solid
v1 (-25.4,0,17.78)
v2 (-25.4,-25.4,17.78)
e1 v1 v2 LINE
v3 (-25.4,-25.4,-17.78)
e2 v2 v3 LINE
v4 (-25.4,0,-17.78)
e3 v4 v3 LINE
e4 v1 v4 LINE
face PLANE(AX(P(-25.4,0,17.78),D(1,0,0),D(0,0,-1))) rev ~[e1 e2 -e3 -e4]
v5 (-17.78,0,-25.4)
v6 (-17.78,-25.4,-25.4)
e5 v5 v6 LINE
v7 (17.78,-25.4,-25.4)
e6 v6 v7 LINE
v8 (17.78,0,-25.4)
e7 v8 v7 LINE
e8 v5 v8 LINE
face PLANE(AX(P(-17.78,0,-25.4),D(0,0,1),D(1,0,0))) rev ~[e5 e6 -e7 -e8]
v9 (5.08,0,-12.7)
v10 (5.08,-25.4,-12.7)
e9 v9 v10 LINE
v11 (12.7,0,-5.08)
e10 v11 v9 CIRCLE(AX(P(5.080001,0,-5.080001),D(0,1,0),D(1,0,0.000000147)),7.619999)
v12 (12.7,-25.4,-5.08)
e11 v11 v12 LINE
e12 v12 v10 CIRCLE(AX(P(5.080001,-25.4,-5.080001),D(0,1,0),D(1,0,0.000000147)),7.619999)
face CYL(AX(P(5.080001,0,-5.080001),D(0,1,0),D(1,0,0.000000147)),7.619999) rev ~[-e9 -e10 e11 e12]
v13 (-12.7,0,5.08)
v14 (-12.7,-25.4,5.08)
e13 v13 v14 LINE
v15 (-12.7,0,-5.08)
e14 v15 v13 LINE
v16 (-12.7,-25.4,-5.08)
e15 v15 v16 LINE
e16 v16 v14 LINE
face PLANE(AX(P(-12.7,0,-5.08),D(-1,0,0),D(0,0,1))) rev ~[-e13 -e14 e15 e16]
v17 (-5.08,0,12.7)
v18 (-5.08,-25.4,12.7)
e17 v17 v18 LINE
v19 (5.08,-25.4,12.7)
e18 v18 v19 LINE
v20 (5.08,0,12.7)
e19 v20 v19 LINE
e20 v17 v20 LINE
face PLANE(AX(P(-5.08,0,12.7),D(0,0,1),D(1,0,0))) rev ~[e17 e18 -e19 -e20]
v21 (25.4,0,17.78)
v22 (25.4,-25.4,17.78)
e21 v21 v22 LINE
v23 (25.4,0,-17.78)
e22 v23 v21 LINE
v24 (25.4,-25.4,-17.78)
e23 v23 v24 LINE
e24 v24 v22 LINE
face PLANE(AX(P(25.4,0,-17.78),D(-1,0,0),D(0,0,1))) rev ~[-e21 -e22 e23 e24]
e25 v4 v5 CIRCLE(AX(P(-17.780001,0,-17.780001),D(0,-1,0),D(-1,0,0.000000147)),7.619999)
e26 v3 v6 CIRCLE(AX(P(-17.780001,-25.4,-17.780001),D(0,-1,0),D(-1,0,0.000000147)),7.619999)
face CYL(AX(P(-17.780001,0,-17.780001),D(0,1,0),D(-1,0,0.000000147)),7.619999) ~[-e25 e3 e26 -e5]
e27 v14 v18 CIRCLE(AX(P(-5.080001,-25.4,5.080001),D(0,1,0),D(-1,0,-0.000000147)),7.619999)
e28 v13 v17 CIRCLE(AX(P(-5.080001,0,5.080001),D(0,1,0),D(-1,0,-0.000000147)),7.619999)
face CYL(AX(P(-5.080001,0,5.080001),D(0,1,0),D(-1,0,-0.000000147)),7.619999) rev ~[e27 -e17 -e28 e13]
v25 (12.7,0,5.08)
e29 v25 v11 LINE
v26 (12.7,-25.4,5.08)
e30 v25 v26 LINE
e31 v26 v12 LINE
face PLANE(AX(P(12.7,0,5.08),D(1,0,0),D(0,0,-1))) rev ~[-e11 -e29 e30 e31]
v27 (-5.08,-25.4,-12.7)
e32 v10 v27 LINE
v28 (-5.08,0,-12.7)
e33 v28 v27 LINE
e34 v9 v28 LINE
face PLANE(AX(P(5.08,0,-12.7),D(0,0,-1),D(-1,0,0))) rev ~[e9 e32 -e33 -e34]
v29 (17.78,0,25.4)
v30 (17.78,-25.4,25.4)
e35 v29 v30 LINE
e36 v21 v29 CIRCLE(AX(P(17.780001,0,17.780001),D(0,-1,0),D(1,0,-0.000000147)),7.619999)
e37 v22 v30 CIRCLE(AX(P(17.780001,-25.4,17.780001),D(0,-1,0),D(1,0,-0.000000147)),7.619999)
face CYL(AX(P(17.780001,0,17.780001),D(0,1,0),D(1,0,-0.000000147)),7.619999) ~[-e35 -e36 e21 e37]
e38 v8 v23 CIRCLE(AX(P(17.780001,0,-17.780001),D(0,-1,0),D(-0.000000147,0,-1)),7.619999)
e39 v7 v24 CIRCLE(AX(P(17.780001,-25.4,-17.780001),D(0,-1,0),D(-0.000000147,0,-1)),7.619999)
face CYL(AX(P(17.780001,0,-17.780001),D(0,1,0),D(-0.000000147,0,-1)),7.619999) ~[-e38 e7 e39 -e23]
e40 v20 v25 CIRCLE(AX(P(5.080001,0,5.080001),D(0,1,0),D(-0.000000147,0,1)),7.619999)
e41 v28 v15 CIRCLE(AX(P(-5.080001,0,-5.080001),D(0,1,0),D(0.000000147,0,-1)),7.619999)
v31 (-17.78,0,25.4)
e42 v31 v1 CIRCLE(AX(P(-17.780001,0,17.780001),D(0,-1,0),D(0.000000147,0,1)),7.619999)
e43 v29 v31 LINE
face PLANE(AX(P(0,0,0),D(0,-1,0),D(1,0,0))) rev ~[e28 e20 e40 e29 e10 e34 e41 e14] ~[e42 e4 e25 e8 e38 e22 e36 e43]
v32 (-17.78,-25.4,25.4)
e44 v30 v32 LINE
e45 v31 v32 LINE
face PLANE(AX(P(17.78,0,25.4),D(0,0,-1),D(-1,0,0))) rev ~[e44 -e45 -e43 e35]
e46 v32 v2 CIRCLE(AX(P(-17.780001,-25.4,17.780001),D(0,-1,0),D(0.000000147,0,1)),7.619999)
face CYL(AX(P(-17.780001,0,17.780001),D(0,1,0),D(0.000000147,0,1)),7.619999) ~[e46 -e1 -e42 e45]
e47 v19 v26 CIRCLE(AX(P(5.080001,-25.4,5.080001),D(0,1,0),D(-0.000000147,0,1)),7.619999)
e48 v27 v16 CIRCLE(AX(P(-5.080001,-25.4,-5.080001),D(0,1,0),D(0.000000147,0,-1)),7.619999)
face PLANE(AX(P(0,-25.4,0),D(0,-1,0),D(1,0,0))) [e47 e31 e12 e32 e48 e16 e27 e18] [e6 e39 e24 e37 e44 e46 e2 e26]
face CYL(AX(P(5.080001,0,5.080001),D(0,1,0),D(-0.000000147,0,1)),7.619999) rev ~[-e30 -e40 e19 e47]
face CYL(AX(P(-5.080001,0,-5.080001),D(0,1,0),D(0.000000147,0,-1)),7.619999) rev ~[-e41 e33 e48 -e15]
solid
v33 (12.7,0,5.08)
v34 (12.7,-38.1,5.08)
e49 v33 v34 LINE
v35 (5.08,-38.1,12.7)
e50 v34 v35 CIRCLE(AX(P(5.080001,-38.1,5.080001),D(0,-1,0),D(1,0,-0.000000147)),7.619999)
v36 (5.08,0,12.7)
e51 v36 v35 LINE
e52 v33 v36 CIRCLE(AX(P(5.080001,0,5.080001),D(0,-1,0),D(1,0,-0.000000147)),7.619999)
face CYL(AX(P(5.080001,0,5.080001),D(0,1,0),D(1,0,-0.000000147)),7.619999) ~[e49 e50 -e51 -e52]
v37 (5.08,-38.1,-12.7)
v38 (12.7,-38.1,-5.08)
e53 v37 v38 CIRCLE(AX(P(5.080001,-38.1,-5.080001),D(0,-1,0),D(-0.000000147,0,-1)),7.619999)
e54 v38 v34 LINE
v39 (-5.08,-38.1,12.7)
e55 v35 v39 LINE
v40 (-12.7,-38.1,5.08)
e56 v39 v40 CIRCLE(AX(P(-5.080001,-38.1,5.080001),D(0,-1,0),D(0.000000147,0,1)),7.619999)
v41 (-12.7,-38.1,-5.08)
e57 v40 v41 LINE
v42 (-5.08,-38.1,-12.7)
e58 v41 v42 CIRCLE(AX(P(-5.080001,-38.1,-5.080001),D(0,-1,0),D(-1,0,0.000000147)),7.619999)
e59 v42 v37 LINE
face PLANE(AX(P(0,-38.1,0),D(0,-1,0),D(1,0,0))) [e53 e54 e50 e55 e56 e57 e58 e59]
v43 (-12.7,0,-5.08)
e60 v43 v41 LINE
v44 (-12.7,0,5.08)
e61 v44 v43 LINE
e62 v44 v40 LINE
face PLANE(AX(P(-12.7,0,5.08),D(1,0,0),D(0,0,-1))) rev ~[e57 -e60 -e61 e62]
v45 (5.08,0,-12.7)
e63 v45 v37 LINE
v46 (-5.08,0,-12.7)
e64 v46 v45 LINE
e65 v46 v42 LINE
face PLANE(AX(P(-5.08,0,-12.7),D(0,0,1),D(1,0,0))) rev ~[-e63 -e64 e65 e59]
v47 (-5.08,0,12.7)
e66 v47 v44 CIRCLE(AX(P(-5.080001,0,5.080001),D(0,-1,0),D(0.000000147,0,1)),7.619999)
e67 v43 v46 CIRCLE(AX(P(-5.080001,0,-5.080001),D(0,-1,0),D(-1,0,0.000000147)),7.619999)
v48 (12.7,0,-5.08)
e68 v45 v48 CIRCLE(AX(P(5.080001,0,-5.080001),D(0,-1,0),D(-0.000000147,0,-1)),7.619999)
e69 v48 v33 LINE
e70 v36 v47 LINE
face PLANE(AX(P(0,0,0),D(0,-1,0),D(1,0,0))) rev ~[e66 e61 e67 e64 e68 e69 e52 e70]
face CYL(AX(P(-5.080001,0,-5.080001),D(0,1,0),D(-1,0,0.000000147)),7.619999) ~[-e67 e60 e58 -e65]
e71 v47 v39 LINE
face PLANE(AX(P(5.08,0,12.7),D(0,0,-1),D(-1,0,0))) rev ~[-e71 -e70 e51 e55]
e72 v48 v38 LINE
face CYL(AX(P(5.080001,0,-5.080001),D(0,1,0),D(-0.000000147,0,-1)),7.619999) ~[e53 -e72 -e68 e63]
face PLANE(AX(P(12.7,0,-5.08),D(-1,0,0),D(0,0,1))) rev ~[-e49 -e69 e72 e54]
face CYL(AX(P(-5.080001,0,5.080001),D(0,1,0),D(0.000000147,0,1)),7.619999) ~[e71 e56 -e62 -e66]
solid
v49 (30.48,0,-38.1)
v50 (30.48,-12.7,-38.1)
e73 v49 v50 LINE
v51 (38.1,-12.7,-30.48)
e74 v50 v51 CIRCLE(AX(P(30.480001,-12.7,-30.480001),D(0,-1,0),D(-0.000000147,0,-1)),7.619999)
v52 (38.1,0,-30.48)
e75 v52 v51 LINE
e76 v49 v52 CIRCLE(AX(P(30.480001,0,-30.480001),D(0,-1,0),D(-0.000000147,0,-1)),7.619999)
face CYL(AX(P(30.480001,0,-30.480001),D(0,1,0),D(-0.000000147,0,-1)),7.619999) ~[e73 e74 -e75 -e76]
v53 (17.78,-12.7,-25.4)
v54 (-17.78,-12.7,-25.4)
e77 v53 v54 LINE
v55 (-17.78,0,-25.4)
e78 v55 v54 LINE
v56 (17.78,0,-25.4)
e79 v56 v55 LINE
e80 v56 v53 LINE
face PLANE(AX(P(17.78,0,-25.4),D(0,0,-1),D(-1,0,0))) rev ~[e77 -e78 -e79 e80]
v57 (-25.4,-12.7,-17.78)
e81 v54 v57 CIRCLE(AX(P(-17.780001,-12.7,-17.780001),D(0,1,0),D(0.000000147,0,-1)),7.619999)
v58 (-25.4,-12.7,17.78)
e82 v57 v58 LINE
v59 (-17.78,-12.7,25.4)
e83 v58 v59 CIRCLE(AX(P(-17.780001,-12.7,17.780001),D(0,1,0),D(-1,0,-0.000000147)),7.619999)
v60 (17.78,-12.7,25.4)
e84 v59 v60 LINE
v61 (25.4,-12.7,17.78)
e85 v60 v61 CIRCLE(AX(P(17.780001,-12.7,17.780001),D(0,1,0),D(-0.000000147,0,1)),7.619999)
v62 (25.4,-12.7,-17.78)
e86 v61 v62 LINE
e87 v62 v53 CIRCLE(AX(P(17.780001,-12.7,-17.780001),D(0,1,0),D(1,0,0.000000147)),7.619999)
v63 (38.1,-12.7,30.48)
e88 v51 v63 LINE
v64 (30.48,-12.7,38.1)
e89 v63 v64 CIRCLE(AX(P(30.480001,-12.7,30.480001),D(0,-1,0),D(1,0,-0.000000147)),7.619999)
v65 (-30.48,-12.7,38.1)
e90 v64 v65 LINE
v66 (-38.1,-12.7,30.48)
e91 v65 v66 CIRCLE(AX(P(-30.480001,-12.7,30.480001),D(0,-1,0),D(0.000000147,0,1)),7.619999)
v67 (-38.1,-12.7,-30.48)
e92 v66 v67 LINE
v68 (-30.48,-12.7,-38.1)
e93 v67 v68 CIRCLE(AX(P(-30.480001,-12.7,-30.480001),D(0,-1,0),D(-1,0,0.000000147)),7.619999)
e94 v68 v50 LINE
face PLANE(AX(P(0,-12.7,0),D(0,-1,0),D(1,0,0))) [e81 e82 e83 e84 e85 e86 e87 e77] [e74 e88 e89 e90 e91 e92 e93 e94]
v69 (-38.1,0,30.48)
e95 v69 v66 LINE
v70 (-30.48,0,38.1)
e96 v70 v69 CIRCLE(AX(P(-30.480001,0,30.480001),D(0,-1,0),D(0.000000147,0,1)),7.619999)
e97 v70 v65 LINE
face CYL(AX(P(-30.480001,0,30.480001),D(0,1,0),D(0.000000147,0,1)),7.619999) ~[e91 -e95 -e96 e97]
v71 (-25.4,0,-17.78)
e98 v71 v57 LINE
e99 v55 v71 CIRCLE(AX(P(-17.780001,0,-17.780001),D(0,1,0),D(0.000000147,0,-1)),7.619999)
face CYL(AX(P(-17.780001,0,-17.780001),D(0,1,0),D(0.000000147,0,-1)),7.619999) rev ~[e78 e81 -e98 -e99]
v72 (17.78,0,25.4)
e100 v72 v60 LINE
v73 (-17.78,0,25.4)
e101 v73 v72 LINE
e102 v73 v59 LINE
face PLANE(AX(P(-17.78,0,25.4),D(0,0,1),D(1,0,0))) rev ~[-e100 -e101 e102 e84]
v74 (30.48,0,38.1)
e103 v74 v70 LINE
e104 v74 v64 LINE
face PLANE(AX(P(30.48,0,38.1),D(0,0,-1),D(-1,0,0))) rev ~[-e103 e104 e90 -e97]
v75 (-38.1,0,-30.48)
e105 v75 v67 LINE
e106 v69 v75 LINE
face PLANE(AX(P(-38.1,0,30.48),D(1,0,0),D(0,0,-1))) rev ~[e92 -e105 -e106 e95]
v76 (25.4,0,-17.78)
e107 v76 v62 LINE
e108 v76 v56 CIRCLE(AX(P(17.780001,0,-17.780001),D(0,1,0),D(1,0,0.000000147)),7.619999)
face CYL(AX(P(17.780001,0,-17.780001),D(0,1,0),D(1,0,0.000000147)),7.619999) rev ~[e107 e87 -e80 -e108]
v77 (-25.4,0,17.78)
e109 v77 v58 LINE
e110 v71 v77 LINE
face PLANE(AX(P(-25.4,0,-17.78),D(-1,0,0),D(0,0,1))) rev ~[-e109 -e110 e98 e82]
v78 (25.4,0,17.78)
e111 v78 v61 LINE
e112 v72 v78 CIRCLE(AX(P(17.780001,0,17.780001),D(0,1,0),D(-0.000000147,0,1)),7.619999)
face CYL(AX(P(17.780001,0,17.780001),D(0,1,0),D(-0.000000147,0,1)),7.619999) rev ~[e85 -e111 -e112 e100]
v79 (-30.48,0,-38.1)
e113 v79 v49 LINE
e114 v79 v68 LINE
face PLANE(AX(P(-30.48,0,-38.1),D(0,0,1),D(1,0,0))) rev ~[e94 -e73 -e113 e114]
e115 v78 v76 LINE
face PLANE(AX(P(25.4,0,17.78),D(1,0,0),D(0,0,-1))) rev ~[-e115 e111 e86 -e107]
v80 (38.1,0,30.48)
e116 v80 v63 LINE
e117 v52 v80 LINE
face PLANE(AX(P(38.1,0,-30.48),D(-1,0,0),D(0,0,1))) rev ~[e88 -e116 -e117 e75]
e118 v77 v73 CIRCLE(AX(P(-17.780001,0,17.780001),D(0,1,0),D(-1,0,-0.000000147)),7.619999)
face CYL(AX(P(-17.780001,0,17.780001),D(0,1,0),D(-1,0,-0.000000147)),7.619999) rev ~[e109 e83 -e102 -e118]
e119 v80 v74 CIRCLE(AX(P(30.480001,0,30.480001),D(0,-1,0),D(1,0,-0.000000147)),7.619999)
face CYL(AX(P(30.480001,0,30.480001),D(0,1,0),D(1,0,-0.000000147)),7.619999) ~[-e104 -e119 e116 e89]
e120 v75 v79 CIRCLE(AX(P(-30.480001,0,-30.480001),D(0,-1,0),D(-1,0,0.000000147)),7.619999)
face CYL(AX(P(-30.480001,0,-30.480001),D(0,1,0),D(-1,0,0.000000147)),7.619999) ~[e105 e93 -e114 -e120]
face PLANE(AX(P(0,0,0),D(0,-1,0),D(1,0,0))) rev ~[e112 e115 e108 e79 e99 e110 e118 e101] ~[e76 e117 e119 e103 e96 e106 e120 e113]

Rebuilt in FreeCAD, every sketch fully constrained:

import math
import FreeCAD as App
import Part
import Sketcher
Q = App.Units.Quantity

doc = App.newDocument("Part")
body = doc.addObject("PartDesign::Body", "Body")

sketch1 = body.newObject("Sketcher::SketchObject", "Sketch")
sketch1.AttachmentSupport = (doc.getObject("XZ_Plane"), [""])
sketch1.MapMode = "FlatFace"
sketch1.addGeometry([
    Part.LineSegment(App.Vector(-30.48, -38.1, 0), App.Vector(30.48, -38.1, 0)),
    Part.ArcOfCircle(Part.Circle(App.Vector(30.480001, -30.480001, 0), App.Vector(0, 0, 1), 7.619999), math.radians(-90.000008), math.radians(0.000008)),
    Part.LineSegment(App.Vector(38.1, -30.48, 0), App.Vector(38.1, 30.48, 0)),
    Part.ArcOfCircle(Part.Circle(App.Vector(30.480001, 30.480001, 0), App.Vector(0, 0, 1), 7.619999), math.radians(-0.000008), math.radians(90.000008)),
    Part.LineSegment(App.Vector(30.48, 38.1, 0), App.Vector(-30.48, 38.1, 0)),
    Part.ArcOfCircle(Part.Circle(App.Vector(-30.480001, 30.480001, 0), App.Vector(0, 0, 1), 7.619999), math.radians(89.999992), math.radians(180.000008)),
    Part.LineSegment(App.Vector(-38.1, 30.48, 0), App.Vector(-38.1, -30.48, 0)),
    Part.ArcOfCircle(Part.Circle(App.Vector(-30.480001, -30.480001, 0), App.Vector(0, 0, 1), 7.619999), math.radians(179.999992), math.radians(270.000008)),
    Part.LineSegment(App.Vector(25.4, 17.78, 0), App.Vector(25.4, -17.78, 0)),
    Part.ArcOfCircle(Part.Circle(App.Vector(17.780001, -17.780001, 0), App.Vector(0, 0, 1), 7.619999), math.radians(-90.000008), math.radians(0.000008)),
    Part.LineSegment(App.Vector(17.78, -25.4, 0), App.Vector(-17.78, -25.4, 0)),
    Part.ArcOfCircle(Part.Circle(App.Vector(-17.780001, -17.780001, 0), App.Vector(0, 0, 1), 7.619999), math.radians(179.999992), math.radians(270.000008)),
    Part.LineSegment(App.Vector(-25.4, -17.78, 0), App.Vector(-25.4, 17.78, 0)),
    Part.ArcOfCircle(Part.Circle(App.Vector(-17.780001, 17.780001, 0), App.Vector(0, 0, 1), 7.619999), math.radians(89.999992), math.radians(180.000008)),
    Part.LineSegment(App.Vector(-17.78, 25.4, 0), App.Vector(17.78, 25.4, 0)),
    Part.ArcOfCircle(Part.Circle(App.Vector(17.780001, 17.780001, 0), App.Vector(0, 0, 1), 7.619999), math.radians(-0.000008), math.radians(90.000008)),
], False)
sketch1.addConstraint([
    Sketcher.Constraint("Tangent", 0, 2, 1, 1),
    Sketcher.Constraint("Tangent", 1, 2, 2, 1),
    Sketcher.Constraint("Tangent", 2, 2, 3, 1),
    Sketcher.Constraint("Tangent", 3, 2, 4, 1),
    Sketcher.Constraint("Tangent", 4, 2, 5, 1),
    Sketcher.Constraint("Tangent", 5, 2, 6, 1),
    Sketcher.Constraint("Tangent", 6, 2, 7, 1),
    Sketcher.Constraint("Tangent", 7, 2, 0, 1),
    Sketcher.Constraint("Tangent", 8, 2, 9, 2),
    Sketcher.Constraint("Tangent", 9, 1, 10, 1),
    Sketcher.Constraint("Tangent", 10, 2, 11, 2),
    Sketcher.Constraint("Tangent", 11, 1, 12, 1),
    Sketcher.Constraint("Tangent", 12, 2, 13, 2),
    Sketcher.Constraint("Tangent", 13, 1, 14, 1),
    Sketcher.Constraint("Tangent", 14, 2, 15, 2),
    Sketcher.Constraint("Tangent", 15, 1, 8, 1),
    Sketcher.Constraint("Horizontal", 0),
    Sketcher.Constraint("Vertical", 2),
    Sketcher.Constraint("Horizontal", 4),
    Sketcher.Constraint("Vertical", 6),
    Sketcher.Constraint("Vertical", 8),
    Sketcher.Constraint("Horizontal", 10),
    Sketcher.Constraint("Vertical", 12),
    Sketcher.Constraint("Horizontal", 14),
    Sketcher.Constraint("Equal", 1, 3),
    Sketcher.Constraint("Equal", 3, 5),
    Sketcher.Constraint("Equal", 5, 7),
    Sketcher.Constraint("Equal", 7, 9),
    Sketcher.Constraint("Equal", 9, 11),
    Sketcher.Constraint("Equal", 11, 13),
    Sketcher.Constraint("Equal", 13, 15),
    Sketcher.Constraint("Symmetric", 1, 3, 5, 3, -1, 1),
    Sketcher.Constraint("Symmetric", 9, 3, 13, 3, -1, 1),
    Sketcher.Constraint("Equal", 4, 2),
    Sketcher.Constraint("Equal", 14, 8),
    Sketcher.Constraint("Radius", 1, Q("0.3 in")),
    Sketcher.Constraint("DistanceX", 0, 1, 0, 2, Q("2.4 in")),
    Sketcher.Constraint("DistanceX", 10, 2, 10, 1, Q("1.4 in")),
])
pad1 = body.newObject("PartDesign::Pad", "Pad")
pad1.Profile = sketch1
pad1.Length = Q("0.5 in")
body2 = doc.addObject("PartDesign::Body", "Body001")

sketch2 = body2.newObject("Sketcher::SketchObject", "Sketch001")
sketch2.AttachmentSupport = (doc.getObject("XZ_Plane001"), [""])
sketch2.MapMode = "FlatFace"
sketch2.addGeometry([
    Part.LineSegment(App.Vector(-17.78, -25.4, 0), App.Vector(17.78, -25.4, 0)),
    Part.ArcOfCircle(Part.Circle(App.Vector(17.780001, -17.780001, 0), App.Vector(0, 0, 1), 7.619999), math.radians(-90.000008), math.radians(0.000008)),
    Part.LineSegment(App.Vector(25.4, -17.78, 0), App.Vector(25.4, 17.78, 0)),
    Part.ArcOfCircle(Part.Circle(App.Vector(17.780001, 17.780001, 0), App.Vector(0, 0, 1), 7.619999), math.radians(-0.000008), math.radians(90.000008)),
    Part.LineSegment(App.Vector(17.78, 25.4, 0), App.Vector(-17.78, 25.4, 0)),
    Part.ArcOfCircle(Part.Circle(App.Vector(-17.780001, 17.780001, 0), App.Vector(0, 0, 1), 7.619999), math.radians(89.999992), math.radians(180.000008)),
    Part.LineSegment(App.Vector(-25.4, 17.78, 0), App.Vector(-25.4, -17.78, 0)),
    Part.ArcOfCircle(Part.Circle(App.Vector(-17.780001, -17.780001, 0), App.Vector(0, 0, 1), 7.619999), math.radians(179.999992), math.radians(270.000008)),
    Part.LineSegment(App.Vector(12.7, 5.08, 0), App.Vector(12.7, -5.08, 0)),
    Part.ArcOfCircle(Part.Circle(App.Vector(5.080001, -5.080001, 0), App.Vector(0, 0, 1), 7.619999), math.radians(-90.000008), math.radians(0.000008)),
    Part.LineSegment(App.Vector(5.08, -12.7, 0), App.Vector(-5.08, -12.7, 0)),
    Part.ArcOfCircle(Part.Circle(App.Vector(-5.080001, -5.080001, 0), App.Vector(0, 0, 1), 7.619999), math.radians(179.999992), math.radians(270.000008)),
    Part.LineSegment(App.Vector(-12.7, -5.08, 0), App.Vector(-12.7, 5.08, 0)),
    Part.ArcOfCircle(Part.Circle(App.Vector(-5.080001, 5.080001, 0), App.Vector(0, 0, 1), 7.619999), math.radians(89.999992), math.radians(180.000008)),
    Part.LineSegment(App.Vector(-5.08, 12.7, 0), App.Vector(5.08, 12.7, 0)),
    Part.ArcOfCircle(Part.Circle(App.Vector(5.080001, 5.080001, 0), App.Vector(0, 0, 1), 7.619999), math.radians(-0.000008), math.radians(90.000008)),
], False)
sketch2.addConstraint([
    Sketcher.Constraint("Tangent", 0, 2, 1, 1),
    Sketcher.Constraint("Tangent", 1, 2, 2, 1),
    Sketcher.Constraint("Tangent", 2, 2, 3, 1),
    Sketcher.Constraint("Tangent", 3, 2, 4, 1),
    Sketcher.Constraint("Tangent", 4, 2, 5, 1),
    Sketcher.Constraint("Tangent", 5, 2, 6, 1),
    Sketcher.Constraint("Tangent", 6, 2, 7, 1),
    Sketcher.Constraint("Tangent", 7, 2, 0, 1),
    Sketcher.Constraint("Tangent", 8, 2, 9, 2),
    Sketcher.Constraint("Tangent", 9, 1, 10, 1),
    Sketcher.Constraint("Tangent", 10, 2, 11, 2),
    Sketcher.Constraint("Tangent", 11, 1, 12, 1),
    Sketcher.Constraint("Tangent", 12, 2, 13, 2),
    Sketcher.Constraint("Tangent", 13, 1, 14, 1),
    Sketcher.Constraint("Tangent", 14, 2, 15, 2),
    Sketcher.Constraint("Tangent", 15, 1, 8, 1),
    Sketcher.Constraint("Horizontal", 0),
    Sketcher.Constraint("Vertical", 2),
    Sketcher.Constraint("Horizontal", 4),
    Sketcher.Constraint("Vertical", 6),
    Sketcher.Constraint("Vertical", 8),
    Sketcher.Constraint("Horizontal", 10),
    Sketcher.Constraint("Vertical", 12),
    Sketcher.Constraint("Horizontal", 14),
    Sketcher.Constraint("Equal", 1, 3),
    Sketcher.Constraint("Equal", 3, 5),
    Sketcher.Constraint("Equal", 5, 7),
    Sketcher.Constraint("Equal", 7, 9),
    Sketcher.Constraint("Equal", 9, 11),
    Sketcher.Constraint("Equal", 11, 13),
    Sketcher.Constraint("Equal", 13, 15),
    Sketcher.Constraint("Symmetric", 1, 3, 5, 3, -1, 1),
    Sketcher.Constraint("Symmetric", 9, 3, 13, 3, -1, 1),
    Sketcher.Constraint("Equal", 4, 2),
    Sketcher.Constraint("Equal", 14, 8),
    Sketcher.Constraint("Radius", 1, Q("0.3 in")),
    Sketcher.Constraint("DistanceX", 0, 1, 0, 2, Q("1.4 in")),
    Sketcher.Constraint("DistanceX", 10, 2, 10, 1, Q("0.4 in")),
])
pad2 = body2.newObject("PartDesign::Pad", "Pad001")
pad2.Profile = sketch2
pad2.Length = Q("1 in")
body3 = doc.addObject("PartDesign::Body", "Body002")

sketch3 = body3.newObject("Sketcher::SketchObject", "Sketch002")
sketch3.AttachmentSupport = (doc.getObject("XZ_Plane002"), [""])
sketch3.MapMode = "FlatFace"
sketch3.addGeometry([
    Part.LineSegment(App.Vector(-5.08, -12.7, 0), App.Vector(5.08, -12.7, 0)),
    Part.ArcOfCircle(Part.Circle(App.Vector(5.080001, -5.080001, 0), App.Vector(0, 0, 1), 7.619999), math.radians(-90.000008), math.radians(0.000008)),
    Part.LineSegment(App.Vector(12.7, -5.08, 0), App.Vector(12.7, 5.08, 0)),
    Part.ArcOfCircle(Part.Circle(App.Vector(5.080001, 5.080001, 0), App.Vector(0, 0, 1), 7.619999), math.radians(-0.000008), math.radians(90.000008)),
    Part.LineSegment(App.Vector(5.08, 12.7, 0), App.Vector(-5.08, 12.7, 0)),
    Part.ArcOfCircle(Part.Circle(App.Vector(-5.080001, 5.080001, 0), App.Vector(0, 0, 1), 7.619999), math.radians(89.999992), math.radians(180.000008)),
    Part.LineSegment(App.Vector(-12.7, 5.08, 0), App.Vector(-12.7, -5.08, 0)),
    Part.ArcOfCircle(Part.Circle(App.Vector(-5.080001, -5.080001, 0), App.Vector(0, 0, 1), 7.619999), math.radians(179.999992), math.radians(270.000008)),
], False)
sketch3.addConstraint([
    Sketcher.Constraint("Tangent", 0, 2, 1, 1),
    Sketcher.Constraint("Tangent", 1, 2, 2, 1),
    Sketcher.Constraint("Tangent", 2, 2, 3, 1),
    Sketcher.Constraint("Tangent", 3, 2, 4, 1),
    Sketcher.Constraint("Tangent", 4, 2, 5, 1),
    Sketcher.Constraint("Tangent", 5, 2, 6, 1),
    Sketcher.Constraint("Tangent", 6, 2, 7, 1),
    Sketcher.Constraint("Tangent", 7, 2, 0, 1),
    Sketcher.Constraint("Horizontal", 0),
    Sketcher.Constraint("Vertical", 2),
    Sketcher.Constraint("Horizontal", 4),
    Sketcher.Constraint("Vertical", 6),
    Sketcher.Constraint("Equal", 1, 3),
    Sketcher.Constraint("Equal", 3, 5),
    Sketcher.Constraint("Equal", 5, 7),
    Sketcher.Constraint("Symmetric", 1, 3, 5, 3, -1, 1),
    Sketcher.Constraint("Equal", 4, 2),
    Sketcher.Constraint("Radius", 1, Q("0.3 in")),
    Sketcher.Constraint("DistanceX", 0, 1, 0, 2, Q("0.4 in")),
])
pad3 = body3.newObject("PartDesign::Pad", "Pad002")
pad3.Profile = sketch3
pad3.Length = Q("1.5 in")

doc.recompute()
